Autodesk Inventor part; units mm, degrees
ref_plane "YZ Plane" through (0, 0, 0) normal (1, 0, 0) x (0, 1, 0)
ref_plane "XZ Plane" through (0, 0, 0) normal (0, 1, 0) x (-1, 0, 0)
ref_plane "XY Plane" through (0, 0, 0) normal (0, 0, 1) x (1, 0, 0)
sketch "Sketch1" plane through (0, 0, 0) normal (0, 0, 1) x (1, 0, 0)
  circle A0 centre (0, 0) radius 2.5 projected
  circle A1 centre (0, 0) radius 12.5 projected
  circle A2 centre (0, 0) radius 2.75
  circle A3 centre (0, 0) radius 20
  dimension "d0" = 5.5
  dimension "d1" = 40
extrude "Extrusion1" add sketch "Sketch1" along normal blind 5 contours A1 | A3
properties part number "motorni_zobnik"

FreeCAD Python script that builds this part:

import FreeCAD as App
import Part
import Sketcher
Q = App.Units.Quantity

doc = App.newDocument("Part")
params = doc.addObject("Spreadsheet::Sheet", "Params")
for row, (alias, value) in enumerate([
    ("sketch1_diameter", "40 mm"),
    ("sketch1_diameter2", "5.5 mm"),
    ("pad1_length", "5 mm"),
], start=1):
    params.set(f"A{row}", alias)
    params.set(f"B{row}", "=" + value)
    params.setAlias(f"B{row}", alias)

body = doc.addObject("PartDesign::Body", "Body")

# Sketch on XY plane
sketch1 = body.newObject("Sketcher::SketchObject", "Sketch")
sketch1.AttachmentSupport = (doc.getObject("XY_Plane"), [""])
sketch1.MapMode = "FlatFace"
sketch1.addGeometry(Part.Circle(App.Vector(0, 0, 0), App.Vector(0, 0, 1), 20), False)
sketch1.addGeometry(Part.Circle(App.Vector(0, 0, 0), App.Vector(0, 0, 1), 2.8), False)
sketch1.addConstraint(Sketcher.Constraint("Coincident", 0, 3, -1, 1))
sketch1.addConstraint(Sketcher.Constraint("Coincident", 1, 3, -1, 1))
sketch1.addConstraint(Sketcher.Constraint("Diameter", 0, Q("40 mm")))
sketch1.addConstraint(Sketcher.Constraint("Diameter", 1, Q("5.5 mm")))
sketch1.setExpression("Constraints[2]", "Params.sketch1_diameter")
sketch1.setExpression("Constraints[3]", "Params.sketch1_diameter2")
pad1 = body.newObject("PartDesign::Pad", "Pad")
pad1.Profile = sketch1
pad1.setExpression("Length", "Params.pad1_length")

doc.recompute()
